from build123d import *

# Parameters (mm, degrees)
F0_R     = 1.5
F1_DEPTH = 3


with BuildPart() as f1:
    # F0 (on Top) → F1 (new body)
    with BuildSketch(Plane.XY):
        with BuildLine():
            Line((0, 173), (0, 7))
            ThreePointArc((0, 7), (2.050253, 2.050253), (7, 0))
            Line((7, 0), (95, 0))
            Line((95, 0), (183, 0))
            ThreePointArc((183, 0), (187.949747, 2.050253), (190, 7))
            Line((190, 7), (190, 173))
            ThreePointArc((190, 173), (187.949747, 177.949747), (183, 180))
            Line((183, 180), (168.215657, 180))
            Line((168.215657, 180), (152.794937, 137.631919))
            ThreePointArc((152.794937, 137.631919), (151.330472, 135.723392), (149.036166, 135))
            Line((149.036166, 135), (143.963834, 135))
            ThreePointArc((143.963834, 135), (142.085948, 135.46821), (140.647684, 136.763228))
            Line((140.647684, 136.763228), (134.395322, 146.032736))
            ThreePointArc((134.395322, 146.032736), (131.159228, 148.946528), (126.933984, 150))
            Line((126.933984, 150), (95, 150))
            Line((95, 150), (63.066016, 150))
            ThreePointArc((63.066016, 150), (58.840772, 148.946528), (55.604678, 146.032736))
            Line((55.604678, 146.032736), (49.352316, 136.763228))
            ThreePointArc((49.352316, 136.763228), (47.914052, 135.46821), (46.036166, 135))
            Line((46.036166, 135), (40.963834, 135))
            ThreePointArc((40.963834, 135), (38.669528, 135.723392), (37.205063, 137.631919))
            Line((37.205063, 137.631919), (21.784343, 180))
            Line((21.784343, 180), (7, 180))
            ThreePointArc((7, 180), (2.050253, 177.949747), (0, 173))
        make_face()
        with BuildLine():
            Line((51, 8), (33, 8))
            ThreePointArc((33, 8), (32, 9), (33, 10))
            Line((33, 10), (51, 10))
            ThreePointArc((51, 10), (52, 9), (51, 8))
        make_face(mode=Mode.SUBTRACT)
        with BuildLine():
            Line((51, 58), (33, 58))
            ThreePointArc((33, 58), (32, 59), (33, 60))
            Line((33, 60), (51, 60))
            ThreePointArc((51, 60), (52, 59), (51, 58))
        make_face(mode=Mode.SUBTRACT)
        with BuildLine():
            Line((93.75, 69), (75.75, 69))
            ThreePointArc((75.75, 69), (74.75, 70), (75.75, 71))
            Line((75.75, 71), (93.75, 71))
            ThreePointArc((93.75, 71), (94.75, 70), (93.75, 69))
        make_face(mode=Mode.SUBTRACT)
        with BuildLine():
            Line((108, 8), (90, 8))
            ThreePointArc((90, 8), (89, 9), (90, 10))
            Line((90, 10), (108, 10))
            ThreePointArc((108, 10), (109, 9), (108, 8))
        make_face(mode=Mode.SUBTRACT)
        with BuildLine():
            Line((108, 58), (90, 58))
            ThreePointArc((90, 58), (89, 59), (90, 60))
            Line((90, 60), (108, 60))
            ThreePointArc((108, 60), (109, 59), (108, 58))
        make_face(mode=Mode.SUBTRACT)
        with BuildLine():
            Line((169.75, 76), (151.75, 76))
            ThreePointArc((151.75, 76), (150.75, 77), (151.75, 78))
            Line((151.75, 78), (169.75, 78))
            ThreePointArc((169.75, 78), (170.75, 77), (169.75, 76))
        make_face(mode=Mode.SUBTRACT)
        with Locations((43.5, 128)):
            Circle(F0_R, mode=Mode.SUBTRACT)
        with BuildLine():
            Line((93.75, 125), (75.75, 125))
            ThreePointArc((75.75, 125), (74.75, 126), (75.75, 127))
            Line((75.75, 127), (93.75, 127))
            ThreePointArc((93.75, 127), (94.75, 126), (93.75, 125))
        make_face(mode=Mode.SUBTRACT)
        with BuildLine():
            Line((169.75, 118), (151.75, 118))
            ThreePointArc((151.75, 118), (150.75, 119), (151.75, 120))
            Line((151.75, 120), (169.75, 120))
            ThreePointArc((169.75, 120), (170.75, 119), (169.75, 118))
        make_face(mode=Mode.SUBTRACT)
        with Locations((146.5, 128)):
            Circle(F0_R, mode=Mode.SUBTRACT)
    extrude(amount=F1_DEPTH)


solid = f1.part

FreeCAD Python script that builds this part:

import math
import FreeCAD as App
import Part
import Sketcher
Q = App.Units.Quantity

doc = App.newDocument("Part")
body = doc.addObject("PartDesign::Body", "Body")

sketch1 = body.newObject("Sketcher::SketchObject", "Sketch")
sketch1.AttachmentSupport = (doc.getObject("XY_Plane"), [""])
sketch1.MapMode = "FlatFace"
sketch1.addGeometry(Part.LineSegment(App.Vector(0, 173, 0), App.Vector(0, 7, 0)), False)
sketch1.addGeometry(Part.ArcOfCircle(Part.Circle(App.Vector(7, 7, 0), App.Vector(0, 0, 1), 7), math.radians(-180), math.radians(-90)), False)
sketch1.addGeometry(Part.LineSegment(App.Vector(7, 0, 0), App.Vector(183, 0, 0)), False)
sketch1.addGeometry(Part.ArcOfCircle(Part.Circle(App.Vector(183, 7, 0), App.Vector(0, 0, 1), 7), math.radians(-90), math.radians(0)), False)
sketch1.addGeometry(Part.LineSegment(App.Vector(190, 7, 0), App.Vector(190, 173, 0)), False)
sketch1.addGeometry(Part.ArcOfCircle(Part.Circle(App.Vector(183, 173, 0), App.Vector(0, 0, 1), 7), math.radians(0), math.radians(90)), False)
sketch1.addGeometry(Part.LineSegment(App.Vector(183, 180, 0), App.Vector(168.2, 180, 0)), False)
sketch1.addGeometry(Part.LineSegment(App.Vector(168.2, 180, 0), App.Vector(152.8, 137.6, 0)), False)
sketch1.addGeometry(Part.ArcOfCircle(Part.Circle(App.Vector(149, 139, 0), App.Vector(0, 0, 1), 4), math.radians(-90), math.radians(-20)), False)
sketch1.addGeometry(Part.LineSegment(App.Vector(149, 135, 0), App.Vector(144, 135, 0)), False)
sketch1.addGeometry(Part.ArcOfCircle(Part.Circle(App.Vector(144, 139, 0), App.Vector(0, 0, 1), 4), math.radians(-146), math.radians(-90)), False)
sketch1.addGeometry(Part.LineSegment(App.Vector(140.6, 136.8, 0), App.Vector(134.4, 146, 0)), False)
sketch1.addGeometry(Part.ArcOfCircle(Part.Circle(App.Vector(126.9, 141, 0), App.Vector(0, 0, 1), 9), math.radians(34), math.radians(90)), False)
sketch1.addGeometry(Part.LineSegment(App.Vector(126.9, 150, 0), App.Vector(63.1, 150, 0)), False)
sketch1.addGeometry(Part.ArcOfCircle(Part.Circle(App.Vector(63.1, 141, 0), App.Vector(0, 0, 1), 9), math.radians(90), math.radians(146)), False)
sketch1.addGeometry(Part.LineSegment(App.Vector(55.6, 146, 0), App.Vector(49.4, 136.8, 0)), False)
sketch1.addGeometry(Part.ArcOfCircle(Part.Circle(App.Vector(46, 139, 0), App.Vector(0, 0, 1), 4), math.radians(-90), math.radians(-34)), False)
sketch1.addGeometry(Part.LineSegment(App.Vector(46, 135, 0), App.Vector(41, 135, 0)), False)
sketch1.addGeometry(Part.ArcOfCircle(Part.Circle(App.Vector(41, 139, 0), App.Vector(0, 0, 1), 4), math.radians(-160), math.radians(-90)), False)
sketch1.addGeometry(Part.LineSegment(App.Vector(37.2, 137.6, 0), App.Vector(21.8, 180, 0)), False)
sketch1.addGeometry(Part.LineSegment(App.Vector(21.8, 180, 0), App.Vector(7, 180, 0)), False)
sketch1.addGeometry(Part.ArcOfCircle(Part.Circle(App.Vector(7, 173, 0), App.Vector(0, 0, 1), 7), math.radians(90), math.radians(180)), False)
sketch1.addGeometry(Part.ArcOfCircle(Part.Circle(App.Vector(51, 9, 0), App.Vector(0, 0, 1), 1), math.radians(-90), math.radians(90)), False)
sketch1.addGeometry(Part.LineSegment(App.Vector(51, 8, 0), App.Vector(33, 8, 0)), False)
sketch1.addGeometry(Part.ArcOfCircle(Part.Circle(App.Vector(33, 9, 0), App.Vector(0, 0, 1), 1), math.radians(90), math.radians(270)), False)
sketch1.addGeometry(Part.LineSegment(App.Vector(33, 10, 0), App.Vector(51, 10, 0)), False)
sketch1.addGeometry(Part.ArcOfCircle(Part.Circle(App.Vector(108, 9, 0), App.Vector(0, 0, 1), 1), math.radians(-90), math.radians(90)), False)
sketch1.addGeometry(Part.LineSegment(App.Vector(108, 8, 0), App.Vector(90, 8, 0)), False)
sketch1.addGeometry(Part.ArcOfCircle(Part.Circle(App.Vector(90, 9, 0), App.Vector(0, 0, 1), 1), math.radians(90), math.radians(270)), False)
sketch1.addGeometry(Part.LineSegment(App.Vector(90, 10, 0), App.Vector(108, 10, 0)), False)
sketch1.addGeometry(Part.ArcOfCircle(Part.Circle(App.Vector(51, 59, 0), App.Vector(0, 0, 1), 1), math.radians(-90), math.radians(90)), False)
sketch1.addGeometry(Part.LineSegment(App.Vector(51, 58, 0), App.Vector(33, 58, 0)), False)
sketch1.addGeometry(Part.ArcOfCircle(Part.Circle(App.Vector(33, 59, 0), App.Vector(0, 0, 1), 1), math.radians(90), math.radians(270)), False)
sketch1.addGeometry(Part.LineSegment(App.Vector(33, 60, 0), App.Vector(51, 60, 0)), False)
sketch1.addGeometry(Part.ArcOfCircle(Part.Circle(App.Vector(108, 59, 0), App.Vector(0, 0, 1), 1), math.radians(-90), math.radians(90)), False)
sketch1.addGeometry(Part.LineSegment(App.Vector(108, 58, 0), App.Vector(90, 58, 0)), False)
sketch1.addGeometry(Part.ArcOfCircle(Part.Circle(App.Vector(90, 59, 0), App.Vector(0, 0, 1), 1), math.radians(90), math.radians(270)), False)
sketch1.addGeometry(Part.LineSegment(App.Vector(90, 60, 0), App.Vector(108, 60, 0)), False)
sketch1.addGeometry(Part.ArcOfCircle(Part.Circle(App.Vector(93.8, 70, 0), App.Vector(0, 0, 1), 1), math.radians(-90), math.radians(90)), False)
sketch1.addGeometry(Part.LineSegment(App.Vector(93.8, 69, 0), App.Vector(75.8, 69, 0)), False)
sketch1.addGeometry(Part.ArcOfCircle(Part.Circle(App.Vector(75.8, 70, 0), App.Vector(0, 0, 1), 1), math.radians(90), math.radians(270)), False)
sketch1.addGeometry(Part.LineSegment(App.Vector(75.8, 71, 0), App.Vector(93.8, 71, 0)), False)
sketch1.addGeometry(Part.Circle(App.Vector(43.5, 128, 0), App.Vector(0, 0, 1), 1.5), False)
sketch1.addGeometry(Part.ArcOfCircle(Part.Circle(App.Vector(93.8, 126, 0), App.Vector(0, 0, 1), 1), math.radians(-90), math.radians(90)), False)
sketch1.addGeometry(Part.LineSegment(App.Vector(93.8, 125, 0), App.Vector(75.8, 125, 0)), False)
sketch1.addGeometry(Part.ArcOfCircle(Part.Circle(App.Vector(75.8, 126, 0), App.Vector(0, 0, 1), 1), math.radians(90), math.radians(270)), False)
sketch1.addGeometry(Part.LineSegment(App.Vector(75.8, 127, 0), App.Vector(93.8, 127, 0)), False)
sketch1.addGeometry(Part.ArcOfCircle(Part.Circle(App.Vector(169.8, 77, 0), App.Vector(0, 0, 1), 1), math.radians(-90), math.radians(90)), False)
sketch1.addGeometry(Part.LineSegment(App.Vector(169.8, 76, 0), App.Vector(151.8, 76, 0)), False)
sketch1.addGeometry(Part.ArcOfCircle(Part.Circle(App.Vector(151.8, 77, 0), App.Vector(0, 0, 1), 1), math.radians(90), math.radians(270)), False)
sketch1.addGeometry(Part.LineSegment(App.Vector(151.8, 78, 0), App.Vector(169.8, 78, 0)), False)
sketch1.addGeometry(Part.Circle(App.Vector(146.5, 128, 0), App.Vector(0, 0, 1), 1.5), False)
sketch1.addGeometry(Part.ArcOfCircle(Part.Circle(App.Vector(169.8, 119, 0), App.Vector(0, 0, 1), 1), math.radians(-90), math.radians(90)), False)
sketch1.addGeometry(Part.LineSegment(App.Vector(169.8, 118, 0), App.Vector(151.8, 118, 0)), False)
sketch1.addGeometry(Part.ArcOfCircle(Part.Circle(App.Vector(151.8, 119, 0), App.Vector(0, 0, 1), 1), math.radians(90), math.radians(270)), False)
sketch1.addGeometry(Part.LineSegment(App.Vector(151.8, 120, 0), App.Vector(169.8, 120, 0)), False)
sketch1.addConstraint(Sketcher.Constraint("Tangent", 0, 2, 1, 1))
sketch1.addConstraint(Sketcher.Constraint("Tangent", 1, 2, 2, 1))
sketch1.addConstraint(Sketcher.Constraint("Tangent", 2, 2, 3, 1))
sketch1.addConstraint(Sketcher.Constraint("Tangent", 3, 2, 4, 1))
sketch1.addConstraint(Sketcher.Constraint("Tangent", 4, 2, 5, 1))
sketch1.addConstraint(Sketcher.Constraint("Tangent", 5, 2, 6, 1))
sketch1.addConstraint(Sketcher.Constraint("Coincident", 6, 2, 7, 1))
sketch1.addConstraint(Sketcher.Constraint("Tangent", 7, 2, 8, 2))
sketch1.addConstraint(Sketcher.Constraint("Tangent", 8, 1, 9, 1))
sketch1.addConstraint(Sketcher.Constraint("Tangent", 9, 2, 10, 2))
sketch1.addConstraint(Sketcher.Constraint("Tangent", 10, 1, 11, 1))
sketch1.addConstraint(Sketcher.Constraint("Tangent", 11, 2, 12, 1))
sketch1.addConstraint(Sketcher.Constraint("Tangent", 12, 2, 13, 1))
sketch1.addConstraint(Sketcher.Constraint("Tangent", 13, 2, 14, 1))
sketch1.addConstraint(Sketcher.Constraint("Tangent", 14, 2, 15, 1))
sketch1.addConstraint(Sketcher.Constraint("Tangent", 15, 2, 16, 2))
sketch1.addConstraint(Sketcher.Constraint("Tangent", 16, 1, 17, 1))
sketch1.addConstraint(Sketcher.Constraint("Tangent", 17, 2, 18, 2))
sketch1.addConstraint(Sketcher.Constraint("Tangent", 18, 1, 19, 1))
sketch1.addConstraint(Sketcher.Constraint("Coincident", 19, 2, 20, 1))
sketch1.addConstraint(Sketcher.Constraint("Tangent", 20, 2, 21, 1))
sketch1.addConstraint(Sketcher.Constraint("Tangent", 21, 2, 0, 1))
sketch1.addConstraint(Sketcher.Constraint("Tangent", 22, 1, 23, 1))
sketch1.addConstraint(Sketcher.Constraint("Tangent", 23, 2, 24, 2))
sketch1.addConstraint(Sketcher.Constraint("Tangent", 24, 1, 25, 1))
sketch1.addConstraint(Sketcher.Constraint("Tangent", 25, 2, 22, 2))
sketch1.addConstraint(Sketcher.Constraint("Tangent", 26, 1, 27, 1))
sketch1.addConstraint(Sketcher.Constraint("Tangent", 27, 2, 28, 2))
sketch1.addConstraint(Sketcher.Constraint("Tangent", 28, 1, 29, 1))
sketch1.addConstraint(Sketcher.Constraint("Tangent", 29, 2, 26, 2))
sketch1.addConstraint(Sketcher.Constraint("Tangent", 30, 1, 31, 1))
sketch1.addConstraint(Sketcher.Constraint("Tangent", 31, 2, 32, 2))
sketch1.addConstraint(Sketcher.Constraint("Tangent", 32, 1, 33, 1))
sketch1.addConstraint(Sketcher.Constraint("Tangent", 33, 2, 30, 2))
sketch1.addConstraint(Sketcher.Constraint("Tangent", 34, 1, 35, 1))
sketch1.addConstraint(Sketcher.Constraint("Tangent", 35, 2, 36, 2))
sketch1.addConstraint(Sketcher.Constraint("Tangent", 36, 1, 37, 1))
sketch1.addConstraint(Sketcher.Constraint("Tangent", 37, 2, 34, 2))
sketch1.addConstraint(Sketcher.Constraint("Tangent", 38, 1, 39, 1))
sketch1.addConstraint(Sketcher.Constraint("Tangent", 39, 2, 40, 2))
sketch1.addConstraint(Sketcher.Constraint("Tangent", 40, 1, 41, 1))
sketch1.addConstraint(Sketcher.Constraint("Tangent", 41, 2, 38, 2))
sketch1.addConstraint(Sketcher.Constraint("Tangent", 43, 1, 44, 1))
sketch1.addConstraint(Sketcher.Constraint("Tangent", 44, 2, 45, 2))
sketch1.addConstraint(Sketcher.Constraint("Tangent", 45, 1, 46, 1))
sketch1.addConstraint(Sketcher.Constraint("Tangent", 46, 2, 43, 2))
sketch1.addConstraint(Sketcher.Constraint("Tangent", 47, 1, 48, 1))
sketch1.addConstraint(Sketcher.Constraint("Tangent", 48, 2, 49, 2))
sketch1.addConstraint(Sketcher.Constraint("Tangent", 49, 1, 50, 1))
sketch1.addConstraint(Sketcher.Constraint("Tangent", 50, 2, 47, 2))
sketch1.addConstraint(Sketcher.Constraint("Tangent", 52, 1, 53, 1))
sketch1.addConstraint(Sketcher.Constraint("Tangent", 53, 2, 54, 2))
sketch1.addConstraint(Sketcher.Constraint("Tangent", 54, 1, 55, 1))
sketch1.addConstraint(Sketcher.Constraint("Tangent", 55, 2, 52, 2))
sketch1.addConstraint(Sketcher.Constraint("Vertical", 0))
sketch1.addConstraint(Sketcher.Constraint("Horizontal", 2))
sketch1.addConstraint(Sketcher.Constraint("Vertical", 4))
sketch1.addConstraint(Sketcher.Constraint("Horizontal", 6))
sketch1.addConstraint(Sketcher.Constraint("Horizontal", 9))
sketch1.addConstraint(Sketcher.Constraint("Horizontal", 13))
sketch1.addConstraint(Sketcher.Constraint("Horizontal", 17))
sketch1.addConstraint(Sketcher.Constraint("Horizontal", 20))
sketch1.addConstraint(Sketcher.Constraint("Horizontal", 23))
sketch1.addConstraint(Sketcher.Constraint("Horizontal", 25))
sketch1.addConstraint(Sketcher.Constraint("Horizontal", 27))
sketch1.addConstraint(Sketcher.Constraint("Horizontal", 29))
sketch1.addConstraint(Sketcher.Constraint("Horizontal", 31))
sketch1.addConstraint(Sketcher.Constraint("Horizontal", 33))
sketch1.addConstraint(Sketcher.Constraint("Horizontal", 35))
sketch1.addConstraint(Sketcher.Constraint("Horizontal", 37))
sketch1.addConstraint(Sketcher.Constraint("Horizontal", 39))
sketch1.addConstraint(Sketcher.Constraint("Horizontal", 41))
sketch1.addConstraint(Sketcher.Constraint("Horizontal", 44))
sketch1.addConstraint(Sketcher.Constraint("Horizontal", 46))
sketch1.addConstraint(Sketcher.Constraint("Horizontal", 48))
sketch1.addConstraint(Sketcher.Constraint("Horizontal", 50))
sketch1.addConstraint(Sketcher.Constraint("Horizontal", 53))
sketch1.addConstraint(Sketcher.Constraint("Horizontal", 55))
sketch1.addConstraint(Sketcher.Constraint("Equal", 1, 3))
sketch1.addConstraint(Sketcher.Constraint("Equal", 3, 5))
sketch1.addConstraint(Sketcher.Constraint("Equal", 8, 10))
sketch1.addConstraint(Sketcher.Constraint("Equal", 12, 14))
sketch1.addConstraint(Sketcher.Constraint("Equal", 10, 16))
sketch1.addConstraint(Sketcher.Constraint("Equal", 16, 18))
sketch1.addConstraint(Sketcher.Constraint("Equal", 5, 21))
sketch1.addConstraint(Sketcher.Constraint("Equal", 24, 26))
sketch1.addConstraint(Sketcher.Constraint("Equal", 28, 30))
sketch1.addConstraint(Sketcher.Constraint("Equal", 32, 34))
sketch1.addConstraint(Sketcher.Constraint("Equal", 36, 38))
sketch1.addConstraint(Sketcher.Constraint("Equal", 40, 43))
sketch1.addConstraint(Sketcher.Constraint("Equal", 45, 47))
sketch1.addConstraint(Sketcher.Constraint("Equal", 42, 51))
sketch1.addConstraint(Sketcher.Constraint("Equal", 49, 52))
sketch1.addConstraint(Sketcher.Constraint("PointOnObject", 0, 2, -2))
sketch1.addConstraint(Sketcher.Constraint("PointOnObject", 1, 2, -1))
sketch1.addConstraint(Sketcher.Constraint("Horizontal", 10, 3, 16, 3))
sketch1.addConstraint(Sketcher.Constraint("Horizontal", 5, 3, 21, 3))
sketch1.addConstraint(Sketcher.Constraint("Horizontal", 24, 3, 26, 3))
sketch1.addConstraint(Sketcher.Constraint("Horizontal", 32, 3, 34, 3))
sketch1.addConstraint(Sketcher.Constraint("Horizontal", 42, 3, 51, 3))
sketch1.addConstraint(Sketcher.Constraint("Horizontal", 11, 2, 14, 2))
sketch1.addConstraint(Sketcher.Constraint("Horizontal", 7, 2, 18, 1))
sketch1.addConstraint(Sketcher.Constraint("Vertical", 22, 3, 30, 3))
sketch1.addConstraint(Sketcher.Constraint("Vertical", 24, 3, 32, 3))
sketch1.addConstraint(Sketcher.Constraint("Vertical", 26, 3, 34, 3))
sketch1.addConstraint(Sketcher.Constraint("Vertical", 28, 3, 36, 3))
sketch1.addConstraint(Sketcher.Constraint("Vertical", 38, 3, 43, 3))
sketch1.addConstraint(Sketcher.Constraint("Vertical", 40, 3, 45, 3))
sketch1.addConstraint(Sketcher.Constraint("Vertical", 47, 3, 52, 3))
sketch1.addConstraint(Sketcher.Constraint("Vertical", 49, 3, 54, 3))
sketch1.addConstraint(Sketcher.Constraint("Equal", 9, 17))
sketch1.addConstraint(Sketcher.Constraint("Equal", 6, 20))
sketch1.addConstraint(Sketcher.Constraint("Equal", 25, 27))
sketch1.addConstraint(Sketcher.Constraint("Equal", 37, 39))
sketch1.addConstraint(Sketcher.Constraint("Equal", 46, 48))
sketch1.addConstraint(Sketcher.Constraint("Diameter", 42, 3.0))
sketch1.addConstraint(Sketcher.Constraint("Radius", 1, 7.000002))
sketch1.addConstraint(Sketcher.Constraint("Radius", 8, 4.000002))
sketch1.addConstraint(Sketcher.Constraint("Radius", 12, 9.000002))
sketch1.addConstraint(Sketcher.Constraint("Radius", 22, 1.0))
sketch1.addConstraint(Sketcher.Constraint("DistanceX", 2, 1, 2, 2, 176.0))
sketch1.addConstraint(Sketcher.Constraint("DistanceX", 23, 2, 23, 1, 18.0))
sketch1.addConstraint(Sketcher.Constraint("DistanceY", 0, 2, 0, 1, 166.0))
sketch1.addConstraint(Sketcher.Constraint("Angle", 7, Q("-110 deg")))
sketch1.addConstraint(Sketcher.Constraint("Angle", 11, Q("124 deg")))
sketch1.addConstraint(Sketcher.Constraint("DistanceY", -1, 1, 8, 3, 139.000002))
sketch1.addConstraint(Sketcher.Constraint("DistanceY", -1, 1, 12, 3, 140.999998))
sketch1.addConstraint(Sketcher.Constraint("DistanceX", -1, 1, 22, 3, 51.0))
sketch1.addConstraint(Sketcher.Constraint("DistanceY", -1, 1, 22, 3, 9.0))
sketch1.addConstraint(Sketcher.Constraint("DistanceX", -1, 1, 26, 3, 108.0))
sketch1.addConstraint(Sketcher.Constraint("DistanceY", -1, 1, 30, 3, 59.0))
sketch1.addConstraint(Sketcher.Constraint("DistanceY", -1, 1, 38, 3, 70.0))
sketch1.addConstraint(Sketcher.Constraint("DistanceY", -1, 1, 42, 3, 128.0))
sketch1.addConstraint(Sketcher.Constraint("DistanceY", -1, 1, 43, 3, 126.0))
sketch1.addConstraint(Sketcher.Constraint("DistanceY", -1, 1, 47, 3, 77.0))
sketch1.addConstraint(Sketcher.Constraint("DistanceY", -1, 1, 52, 3, 119.0))
sketch1.addConstraint(Sketcher.Constraint("DistanceX", -1, 1, 42, 3, 43.5))
sketch1.addConstraint(Sketcher.Constraint("DistanceX", -1, 1, 51, 3, 146.5))
sketch1.addConstraint(Sketcher.Constraint("DistanceX", -1, 1, 38, 3, 93.75))
sketch1.addConstraint(Sketcher.Constraint("DistanceX", -1, 1, 47, 3, 169.75))
sketch1.addConstraint(Sketcher.Constraint("DistanceX", 6, 2, 6, 1, 14.784343))
sketch1.addConstraint(Sketcher.Constraint("DistanceX", 9, 2, 9, 1, 5.072332))
pad1 = body.newObject("PartDesign::Pad", "Pad")
pad1.Profile = sketch1
pad1.Length = 3

doc.recompute()
